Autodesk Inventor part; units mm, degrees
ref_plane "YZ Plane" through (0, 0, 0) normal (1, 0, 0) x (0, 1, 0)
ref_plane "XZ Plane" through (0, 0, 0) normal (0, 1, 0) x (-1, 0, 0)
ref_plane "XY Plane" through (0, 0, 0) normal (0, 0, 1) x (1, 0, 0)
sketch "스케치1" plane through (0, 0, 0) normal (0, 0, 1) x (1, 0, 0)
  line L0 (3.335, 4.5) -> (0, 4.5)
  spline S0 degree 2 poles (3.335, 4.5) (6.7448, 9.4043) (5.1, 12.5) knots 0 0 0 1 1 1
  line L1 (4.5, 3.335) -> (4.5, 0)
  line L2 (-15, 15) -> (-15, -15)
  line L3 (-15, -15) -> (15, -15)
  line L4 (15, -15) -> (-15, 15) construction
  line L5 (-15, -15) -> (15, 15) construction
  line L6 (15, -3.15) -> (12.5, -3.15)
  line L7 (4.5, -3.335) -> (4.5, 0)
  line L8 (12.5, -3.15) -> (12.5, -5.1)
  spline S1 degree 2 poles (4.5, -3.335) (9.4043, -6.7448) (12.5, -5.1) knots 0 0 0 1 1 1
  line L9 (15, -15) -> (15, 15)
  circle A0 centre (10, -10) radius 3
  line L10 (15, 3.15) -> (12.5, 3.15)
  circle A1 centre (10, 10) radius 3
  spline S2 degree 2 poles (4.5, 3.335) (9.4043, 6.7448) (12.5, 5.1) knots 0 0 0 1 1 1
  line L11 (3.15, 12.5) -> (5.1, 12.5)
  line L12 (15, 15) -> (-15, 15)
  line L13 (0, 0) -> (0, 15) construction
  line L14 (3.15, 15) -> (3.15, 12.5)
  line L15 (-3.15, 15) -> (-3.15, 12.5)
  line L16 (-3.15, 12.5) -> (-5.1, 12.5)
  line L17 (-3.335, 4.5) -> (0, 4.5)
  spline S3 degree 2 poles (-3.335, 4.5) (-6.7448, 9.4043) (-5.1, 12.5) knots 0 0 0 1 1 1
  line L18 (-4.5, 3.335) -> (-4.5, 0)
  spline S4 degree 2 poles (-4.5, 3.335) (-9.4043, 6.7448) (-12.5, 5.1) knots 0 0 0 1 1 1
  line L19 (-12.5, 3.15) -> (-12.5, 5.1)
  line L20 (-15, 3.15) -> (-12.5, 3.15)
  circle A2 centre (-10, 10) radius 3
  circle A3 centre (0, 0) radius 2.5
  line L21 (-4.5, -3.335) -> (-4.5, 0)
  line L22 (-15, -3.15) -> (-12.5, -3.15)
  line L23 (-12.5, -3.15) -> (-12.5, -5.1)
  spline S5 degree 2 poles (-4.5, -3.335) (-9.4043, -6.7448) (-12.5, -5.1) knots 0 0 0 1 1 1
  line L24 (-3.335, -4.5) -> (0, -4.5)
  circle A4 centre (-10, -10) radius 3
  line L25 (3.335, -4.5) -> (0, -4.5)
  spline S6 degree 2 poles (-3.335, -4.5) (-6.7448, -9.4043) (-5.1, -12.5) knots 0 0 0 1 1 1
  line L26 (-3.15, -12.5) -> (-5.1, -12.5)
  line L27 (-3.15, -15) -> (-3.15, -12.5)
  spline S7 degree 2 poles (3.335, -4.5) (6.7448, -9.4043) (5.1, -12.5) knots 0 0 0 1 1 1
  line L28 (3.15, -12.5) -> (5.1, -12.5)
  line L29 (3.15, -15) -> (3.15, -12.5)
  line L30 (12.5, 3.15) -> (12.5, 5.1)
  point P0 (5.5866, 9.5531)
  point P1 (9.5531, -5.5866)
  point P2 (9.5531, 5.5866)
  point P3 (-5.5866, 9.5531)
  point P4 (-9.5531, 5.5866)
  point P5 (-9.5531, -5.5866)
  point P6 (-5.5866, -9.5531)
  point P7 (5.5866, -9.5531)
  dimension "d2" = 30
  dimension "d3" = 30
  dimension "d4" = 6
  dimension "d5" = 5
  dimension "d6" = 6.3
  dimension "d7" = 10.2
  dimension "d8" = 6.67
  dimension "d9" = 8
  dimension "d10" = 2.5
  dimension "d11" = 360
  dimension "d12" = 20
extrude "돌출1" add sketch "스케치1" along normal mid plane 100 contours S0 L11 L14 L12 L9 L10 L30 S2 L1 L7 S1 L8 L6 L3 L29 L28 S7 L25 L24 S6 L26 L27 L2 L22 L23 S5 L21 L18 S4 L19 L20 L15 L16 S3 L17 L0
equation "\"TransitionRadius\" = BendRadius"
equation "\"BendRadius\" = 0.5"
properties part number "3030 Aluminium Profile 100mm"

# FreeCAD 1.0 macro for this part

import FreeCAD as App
import Part
import Sketcher
Q = App.Units.Quantity

doc = App.newDocument("Part")
params = doc.addObject("Spreadsheet::Sheet", "Params")
for row, (alias, value) in enumerate([
    ("sketch1_diameter", "6 mm"),
    ("sketch1_diameter2", "6 mm"),
    ("sketch1_diameter3", "6 mm"),
    ("sketch1_diameter4", "5 mm"),
    ("sketch1_diameter5", "6 mm"),
    ("pad1_length", "100 mm"),
], start=1):
    params.set(f"A{row}", alias)
    params.set(f"B{row}", "=" + value)
    params.setAlias(f"B{row}", alias)

body = doc.addObject("PartDesign::Body", "Body")

# Sketch on XY plane
sketch1 = doc.addObject("Sketcher::SketchObject", "Sketch")
body.addObject(sketch1)
sketch1.AttachmentSupport = (doc.XY_Plane, [""])
sketch1.MapMode = "FlatFace"
sketch1.addGeometry([
    Part.BSplineCurve([App.Vector(3.335, 4.5, 0), App.Vector(6.7448, 9.4043, 0), App.Vector(5.1, 12.5, 0)], [3, 3], [0, 1], False, 2, [1, 1, 1], False),  # 0
    Part.LineSegment(App.Vector(3.335, 4.5, 0), App.Vector(-3.335, 4.5, 0)),  # 1
    Part.BSplineCurve([App.Vector(-3.335, 4.5, 0), App.Vector(-6.7448, 9.4043, 0), App.Vector(-5.1, 12.5, 0)], [3, 3], [0, 1], False, 2, [1, 1, 1], False),  # 2
    Part.LineSegment(App.Vector(-5.1, 12.5, 0), App.Vector(-3.15, 12.5, 0)),  # 3
    Part.LineSegment(App.Vector(-3.15, 12.5, 0), App.Vector(-3.15, 15, 0)),  # 4
    Part.LineSegment(App.Vector(-3.15, 15, 0), App.Vector(-15, 15, 0)),  # 5
    Part.LineSegment(App.Vector(-15, 15, 0), App.Vector(-15, 3.15, 0)),  # 6
    Part.LineSegment(App.Vector(-15, 3.15, 0), App.Vector(-12.5, 3.15, 0)),  # 7
    Part.LineSegment(App.Vector(-12.5, 3.15, 0), App.Vector(-12.5, 5.1, 0)),  # 8
    Part.BSplineCurve([App.Vector(-4.5, 3.335, 0), App.Vector(-9.4043, 6.7448, 0), App.Vector(-12.5, 5.1, 0)], [3, 3], [0, 1], False, 2, [1, 1, 1], False),  # 9
    Part.LineSegment(App.Vector(-4.5, 3.335, 0), App.Vector(-4.5, -3.335, 0)),  # 10
    Part.BSplineCurve([App.Vector(-4.5, -3.335, 0), App.Vector(-9.4043, -6.7448, 0), App.Vector(-12.5, -5.1, 0)], [3, 3], [0, 1], False, 2, [1, 1, 1], False),  # 11
    Part.LineSegment(App.Vector(-12.5, -5.1, 0), App.Vector(-12.5, -3.15, 0)),  # 12
    Part.LineSegment(App.Vector(-12.5, -3.15, 0), App.Vector(-15, -3.15, 0)),  # 13
    Part.LineSegment(App.Vector(-15, -3.15, 0), App.Vector(-15, -15, 0)),  # 14
    Part.LineSegment(App.Vector(-15, -15, 0), App.Vector(-3.15, -15, 0)),  # 15
    Part.LineSegment(App.Vector(-3.15, -15, 0), App.Vector(-3.15, -12.5, 0)),  # 16
    Part.LineSegment(App.Vector(-3.15, -12.5, 0), App.Vector(-5.1, -12.5, 0)),  # 17
    Part.BSplineCurve([App.Vector(-3.335, -4.5, 0), App.Vector(-6.7448, -9.4043, 0), App.Vector(-5.1, -12.5, 0)], [3, 3], [0, 1], False, 2, [1, 1, 1], False),  # 18
    Part.LineSegment(App.Vector(-3.335, -4.5, 0), App.Vector(3.335, -4.5, 0)),  # 19
    Part.BSplineCurve([App.Vector(3.335, -4.5, 0), App.Vector(6.7448, -9.4043, 0), App.Vector(5.1, -12.5, 0)], [3, 3], [0, 1], False, 2, [1, 1, 1], False),  # 20
    Part.LineSegment(App.Vector(5.1, -12.5, 0), App.Vector(3.15, -12.5, 0)),  # 21
    Part.LineSegment(App.Vector(3.15, -12.5, 0), App.Vector(3.15, -15, 0)),  # 22
    Part.LineSegment(App.Vector(3.15, -15, 0), App.Vector(15, -15, 0)),  # 23
    Part.LineSegment(App.Vector(15, -15, 0), App.Vector(15, -3.15, 0)),  # 24
    Part.LineSegment(App.Vector(15, -3.15, 0), App.Vector(12.5, -3.15, 0)),  # 25
    Part.LineSegment(App.Vector(12.5, -3.15, 0), App.Vector(12.5, -5.1, 0)),  # 26
    Part.BSplineCurve([App.Vector(4.5, -3.335, 0), App.Vector(9.4043, -6.7448, 0), App.Vector(12.5, -5.1, 0)], [3, 3], [0, 1], False, 2, [1, 1, 1], False),  # 27
    Part.LineSegment(App.Vector(4.5, -3.335, 0), App.Vector(4.5, 3.335, 0)),  # 28
    Part.BSplineCurve([App.Vector(4.5, 3.335, 0), App.Vector(9.4043, 6.7448, 0), App.Vector(12.5, 5.1, 0)], [3, 3], [0, 1], False, 2, [1, 1, 1], False),  # 29
    Part.LineSegment(App.Vector(12.5, 5.1, 0), App.Vector(12.5, 3.15, 0)),  # 30
    Part.LineSegment(App.Vector(12.5, 3.15, 0), App.Vector(15, 3.15, 0)),  # 31
    Part.LineSegment(App.Vector(15, 3.15, 0), App.Vector(15, 15, 0)),  # 32
    Part.LineSegment(App.Vector(15, 15, 0), App.Vector(3.15, 15, 0)),  # 33
    Part.LineSegment(App.Vector(3.15, 15, 0), App.Vector(3.15, 12.5, 0)),  # 34
    Part.LineSegment(App.Vector(3.15, 12.5, 0), App.Vector(5.1, 12.5, 0)),  # 35
    Part.Circle(App.Vector(-10, -10, 0), App.Vector(0, 0, 1), 3),  # 36
    Part.Circle(App.Vector(10, -10, 0), App.Vector(0, 0, 1), 3),  # 37
    Part.Circle(App.Vector(-10, 10, 0), App.Vector(0, 0, 1), 3),  # 38
    Part.Circle(App.Vector(0, 0, 0), App.Vector(0, 0, 1), 2.5),  # 39
    Part.Circle(App.Vector(10, 10, 0), App.Vector(0, 0, 1), 3),  # 40
], False)
sketch1.addConstraint([
    Sketcher.Constraint("Block", 0),
    Sketcher.Constraint("Block", 2),
    Sketcher.Constraint("Block", 9),
    Sketcher.Constraint("Block", 11),
    Sketcher.Constraint("Block", 18),
    Sketcher.Constraint("Block", 20),
    Sketcher.Constraint("Block", 27),
    Sketcher.Constraint("Block", 29),
    Sketcher.Constraint("Coincident", 0, 1, 1, 1),
    Sketcher.Constraint("Coincident", 1, 2, 2, 1),
    Sketcher.Constraint("Coincident", 2, 2, 3, 1),
    Sketcher.Constraint("Coincident", 3, 2, 4, 1),
    Sketcher.Constraint("Coincident", 4, 2, 5, 1),
    Sketcher.Constraint("Coincident", 5, 2, 6, 1),
    Sketcher.Constraint("Coincident", 6, 2, 7, 1),
    Sketcher.Constraint("Coincident", 7, 2, 8, 1),
    Sketcher.Constraint("Coincident", 8, 2, 9, 2),
    Sketcher.Constraint("Coincident", 9, 1, 10, 1),
    Sketcher.Constraint("Coincident", 10, 2, 11, 1),
    Sketcher.Constraint("Coincident", 11, 2, 12, 1),
    Sketcher.Constraint("Coincident", 12, 2, 13, 1),
    Sketcher.Constraint("Coincident", 13, 2, 14, 1),
    Sketcher.Constraint("Coincident", 14, 2, 15, 1),
    Sketcher.Constraint("Coincident", 15, 2, 16, 1),
    Sketcher.Constraint("Coincident", 16, 2, 17, 1),
    Sketcher.Constraint("Coincident", 17, 2, 18, 2),
    Sketcher.Constraint("Coincident", 18, 1, 19, 1),
    Sketcher.Constraint("Coincident", 19, 2, 20, 1),
    Sketcher.Constraint("Coincident", 20, 2, 21, 1),
    Sketcher.Constraint("Coincident", 21, 2, 22, 1),
    Sketcher.Constraint("Coincident", 22, 2, 23, 1),
    Sketcher.Constraint("Coincident", 23, 2, 24, 1),
    Sketcher.Constraint("Coincident", 24, 2, 25, 1),
    Sketcher.Constraint("Coincident", 25, 2, 26, 1),
    Sketcher.Constraint("Coincident", 26, 2, 27, 2),
    Sketcher.Constraint("Coincident", 27, 1, 28, 1),
    Sketcher.Constraint("Coincident", 28, 2, 29, 1),
    Sketcher.Constraint("Coincident", 29, 2, 30, 1),
    Sketcher.Constraint("Coincident", 30, 2, 31, 1),
    Sketcher.Constraint("Coincident", 31, 2, 32, 1),
    Sketcher.Constraint("Coincident", 32, 2, 33, 1),
    Sketcher.Constraint("Coincident", 33, 2, 34, 1),
    Sketcher.Constraint("Coincident", 34, 2, 35, 1),
    Sketcher.Constraint("Coincident", 35, 2, 0, 2),
    Sketcher.Constraint("Horizontal", 3),
    Sketcher.Constraint("Vertical", 4),
    Sketcher.Constraint("Horizontal", 5),
    Sketcher.Constraint("Vertical", 6),
    Sketcher.Constraint("Horizontal", 7),
    Sketcher.Constraint("Vertical", 8),
    Sketcher.Constraint("Vertical", 12),
    Sketcher.Constraint("Horizontal", 13),
    Sketcher.Constraint("Vertical", 14),
    Sketcher.Constraint("Horizontal", 15),
    Sketcher.Constraint("Vertical", 16),
    Sketcher.Constraint("Horizontal", 17),
    Sketcher.Constraint("Horizontal", 21),
    Sketcher.Constraint("Vertical", 22),
    Sketcher.Constraint("Horizontal", 23),
    Sketcher.Constraint("Vertical", 24),
    Sketcher.Constraint("Horizontal", 25),
    Sketcher.Constraint("Vertical", 26),
    Sketcher.Constraint("Vertical", 30),
    Sketcher.Constraint("Horizontal", 31),
    Sketcher.Constraint("Vertical", 32),
    Sketcher.Constraint("Horizontal", 33),
    Sketcher.Constraint("Vertical", 34),
    Sketcher.Constraint("Horizontal", 35),
    Sketcher.Constraint("Coincident", 39, 3, -1, 1),
    Sketcher.Constraint("Diameter", 36, Q("6 mm")),
    Sketcher.Constraint("Diameter", 37, Q("6 mm")),
    Sketcher.Constraint("Diameter", 38, Q("6 mm")),
    Sketcher.Constraint("Diameter", 39, Q("5 mm")),
    Sketcher.Constraint("Diameter", 40, Q("6 mm")),
    Sketcher.Constraint("DistanceX", 7, 1, 7, 2, Q("2.5 mm")),
    Sketcher.Constraint("DistanceX", 13, 2, 13, 1, Q("2.5 mm")),
    Sketcher.Constraint("DistanceX", 25, 2, 25, 1, Q("2.5 mm")),
    Sketcher.Constraint("DistanceX", 31, 1, 31, 2, Q("2.5 mm")),
    Sketcher.Constraint("DistanceY", 4, 1, 4, 2, Q("2.5 mm")),
    Sketcher.Constraint("DistanceY", 16, 1, 16, 2, Q("2.5 mm")),
    Sketcher.Constraint("DistanceY", 22, 2, 22, 1, Q("2.5 mm")),
    Sketcher.Constraint("DistanceY", 34, 2, 34, 1, Q("2.5 mm")),
    Sketcher.Constraint("DistanceX", 36, 3, 37, 3, Q("20 mm")),
    Sketcher.Constraint("DistanceY", 36, 3, 38, 3, Q("20 mm")),
    Sketcher.Constraint("DistanceX", 38, 3, 37, 3, Q("20 mm")),
    Sketcher.Constraint("DistanceY", 37, 3, 38, 3, Q("20 mm")),
    Sketcher.Constraint("DistanceY", 37, 3, 40, 3, Q("20 mm")),
    Sketcher.Constraint("DistanceX", 38, 3, 40, 3, Q("20 mm")),
    Sketcher.Constraint("DistanceY", 38, 3, 4, 2, Q("5 mm")),
    Sketcher.Constraint("DistanceX", 5, 2, 38, 3, Q("5 mm")),
    Sketcher.Constraint("DistanceY", 12, 2, 7, 2, Q("6.3 mm")),
    Sketcher.Constraint("DistanceX", 16, 2, 21, 2, Q("6.3 mm")),
    Sketcher.Constraint("DistanceY", 25, 2, 30, 2, Q("6.3 mm")),
    Sketcher.Constraint("DistanceX", 4, 2, 33, 2, Q("6.3 mm")),
    Sketcher.Constraint("DistanceX", 3, 1, 3, 2, Q("1.95 mm")),
    Sketcher.Constraint("DistanceX", 15, 1, 15, 2, Q("11.85 mm")),
    Sketcher.Constraint("DistanceY", 6, 2, 6, 1, Q("11.85 mm")),
    Sketcher.Constraint("DistanceY", 24, 1, 24, 2, Q("11.85 mm")),
])
sketch1.setExpression("Constraints[69]", "Params.sketch1_diameter")
sketch1.setExpression("Constraints[70]", "Params.sketch1_diameter2")
sketch1.setExpression("Constraints[71]", "Params.sketch1_diameter3")
sketch1.setExpression("Constraints[72]", "Params.sketch1_diameter4")
sketch1.setExpression("Constraints[73]", "Params.sketch1_diameter5")
pad1 = doc.addObject("PartDesign::Pad", "Pad")
body.addObject(pad1)
pad1.Profile = sketch1
pad1.setExpression("Length", "Params.pad1_length")
pad1.Midplane = True

doc.recompute()
